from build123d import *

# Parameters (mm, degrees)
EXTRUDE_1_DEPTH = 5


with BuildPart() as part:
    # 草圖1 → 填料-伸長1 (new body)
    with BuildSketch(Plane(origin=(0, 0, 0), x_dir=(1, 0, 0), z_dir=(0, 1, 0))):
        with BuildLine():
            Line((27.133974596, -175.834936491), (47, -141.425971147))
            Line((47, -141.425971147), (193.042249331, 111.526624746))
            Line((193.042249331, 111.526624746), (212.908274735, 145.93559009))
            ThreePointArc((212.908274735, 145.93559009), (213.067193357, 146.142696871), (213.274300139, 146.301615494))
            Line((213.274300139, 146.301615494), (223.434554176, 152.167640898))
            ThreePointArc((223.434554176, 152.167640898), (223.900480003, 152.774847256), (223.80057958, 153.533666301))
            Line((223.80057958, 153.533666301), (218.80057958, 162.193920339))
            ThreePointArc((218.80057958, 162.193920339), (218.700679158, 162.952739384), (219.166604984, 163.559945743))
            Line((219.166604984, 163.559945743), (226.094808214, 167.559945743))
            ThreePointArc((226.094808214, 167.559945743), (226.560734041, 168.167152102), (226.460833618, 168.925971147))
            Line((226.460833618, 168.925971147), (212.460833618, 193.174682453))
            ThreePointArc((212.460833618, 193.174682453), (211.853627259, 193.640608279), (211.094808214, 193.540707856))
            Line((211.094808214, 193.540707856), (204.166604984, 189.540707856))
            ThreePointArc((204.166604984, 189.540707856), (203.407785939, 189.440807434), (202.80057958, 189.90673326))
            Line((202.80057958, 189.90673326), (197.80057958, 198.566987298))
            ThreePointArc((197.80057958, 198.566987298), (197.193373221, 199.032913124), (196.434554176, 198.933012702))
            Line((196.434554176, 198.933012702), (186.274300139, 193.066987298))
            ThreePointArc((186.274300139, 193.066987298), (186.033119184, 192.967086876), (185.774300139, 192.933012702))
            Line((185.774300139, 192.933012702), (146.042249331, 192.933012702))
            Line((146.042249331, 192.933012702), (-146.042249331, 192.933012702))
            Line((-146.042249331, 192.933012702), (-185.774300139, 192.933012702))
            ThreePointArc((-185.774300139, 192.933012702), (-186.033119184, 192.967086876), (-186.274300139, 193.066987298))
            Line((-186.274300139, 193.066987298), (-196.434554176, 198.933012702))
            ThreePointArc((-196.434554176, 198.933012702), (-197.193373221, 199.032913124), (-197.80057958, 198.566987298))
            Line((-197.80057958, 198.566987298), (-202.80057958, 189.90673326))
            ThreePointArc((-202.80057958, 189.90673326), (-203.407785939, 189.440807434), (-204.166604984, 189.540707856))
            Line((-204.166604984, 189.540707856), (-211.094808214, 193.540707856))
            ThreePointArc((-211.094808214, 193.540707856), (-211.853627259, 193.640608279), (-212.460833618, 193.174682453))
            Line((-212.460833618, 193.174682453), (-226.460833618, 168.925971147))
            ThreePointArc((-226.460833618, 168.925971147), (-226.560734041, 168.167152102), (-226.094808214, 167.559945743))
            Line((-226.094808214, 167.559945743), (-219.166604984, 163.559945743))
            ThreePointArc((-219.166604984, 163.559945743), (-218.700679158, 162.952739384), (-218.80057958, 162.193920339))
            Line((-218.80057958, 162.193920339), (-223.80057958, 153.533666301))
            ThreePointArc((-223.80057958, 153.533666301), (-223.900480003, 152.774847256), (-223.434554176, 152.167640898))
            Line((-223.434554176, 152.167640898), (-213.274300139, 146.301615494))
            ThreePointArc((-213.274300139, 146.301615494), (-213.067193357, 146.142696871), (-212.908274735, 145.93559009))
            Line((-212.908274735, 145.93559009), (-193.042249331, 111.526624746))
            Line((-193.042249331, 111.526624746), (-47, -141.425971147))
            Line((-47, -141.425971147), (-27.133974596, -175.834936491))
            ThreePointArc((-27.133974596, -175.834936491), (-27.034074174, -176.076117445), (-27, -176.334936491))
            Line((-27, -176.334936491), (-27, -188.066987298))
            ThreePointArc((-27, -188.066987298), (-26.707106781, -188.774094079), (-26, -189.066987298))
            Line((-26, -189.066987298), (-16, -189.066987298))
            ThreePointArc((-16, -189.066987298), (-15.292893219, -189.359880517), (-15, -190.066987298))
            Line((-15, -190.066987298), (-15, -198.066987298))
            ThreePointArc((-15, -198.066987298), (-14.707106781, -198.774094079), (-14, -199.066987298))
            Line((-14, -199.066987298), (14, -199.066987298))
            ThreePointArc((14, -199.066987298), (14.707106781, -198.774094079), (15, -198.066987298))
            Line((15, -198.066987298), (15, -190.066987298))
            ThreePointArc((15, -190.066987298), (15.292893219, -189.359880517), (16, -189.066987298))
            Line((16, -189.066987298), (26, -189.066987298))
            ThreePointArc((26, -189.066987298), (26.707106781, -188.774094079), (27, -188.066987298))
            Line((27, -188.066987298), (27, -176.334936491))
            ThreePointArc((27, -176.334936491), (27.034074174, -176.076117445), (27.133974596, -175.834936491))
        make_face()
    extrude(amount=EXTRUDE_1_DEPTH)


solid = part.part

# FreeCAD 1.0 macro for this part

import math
import FreeCAD as App
import Part
import Sketcher

V = App.Vector
Q = App.Units.Quantity

doc = App.newDocument("Part")
body = doc.addObject("PartDesign::Body", "Body")

sketch1 = body.newObject("Sketcher::SketchObject", "Sketch")
sketch1.AttachmentSupport = (doc.getObject("XZ_Plane"), [""])
sketch1.MapMode = "FlatFace"
sketch1.addGeometry(Part.LineSegment(V(27.1, 175.8, 0), V(47, 141.4, 0)), False)
sketch1.addGeometry(Part.LineSegment(V(47, 141.4, 0), V(193, -111.5, 0)), False)
sketch1.addGeometry(Part.LineSegment(V(193, -111.5, 0), V(212.9, -145.9, 0)), False)
sketch1.addGeometry(Part.ArcOfCircle(Part.Circle(V(213.8, -145.4, 0), V(0, 0, 1), 1), math.radians(-150), math.radians(-120)), False)
sketch1.addGeometry(Part.LineSegment(V(213.3, -146.3, 0), V(223.4, -152.2, 0)), False)
sketch1.addGeometry(Part.ArcOfCircle(Part.Circle(V(222.9, -153, 0), V(0, 0, 1), 1), math.radians(-30), math.radians(60)), False)
sketch1.addGeometry(Part.LineSegment(V(223.8, -153.5, 0), V(218.8, -162.2, 0)), False)
sketch1.addGeometry(Part.ArcOfCircle(Part.Circle(V(219.7, -162.7, 0), V(0, 0, 1), 1), math.radians(150), math.radians(240)), False)
sketch1.addGeometry(Part.LineSegment(V(219.2, -163.6, 0), V(226.1, -167.6, 0)), False)
sketch1.addGeometry(Part.ArcOfCircle(Part.Circle(V(225.6, -168.4, 0), V(0, 0, 1), 1), math.radians(-30), math.radians(60)), False)
sketch1.addGeometry(Part.LineSegment(V(226.5, -168.9, 0), V(212.5, -193.2, 0)), False)
sketch1.addGeometry(Part.ArcOfCircle(Part.Circle(V(211.6, -192.7, 0), V(0, 0, 1), 1), math.radians(-120), math.radians(-30)), False)
sketch1.addGeometry(Part.LineSegment(V(211.1, -193.5, 0), V(204.2, -189.5, 0)), False)
sketch1.addGeometry(Part.ArcOfCircle(Part.Circle(V(203.7, -190.4, 0), V(0, 0, 1), 1), math.radians(60), math.radians(150)), False)
sketch1.addGeometry(Part.LineSegment(V(202.8, -189.9, 0), V(197.8, -198.6, 0)), False)
sketch1.addGeometry(Part.ArcOfCircle(Part.Circle(V(196.9, -198.1, 0), V(0, 0, 1), 1), math.radians(-120), math.radians(-30)), False)
sketch1.addGeometry(Part.LineSegment(V(196.4, -198.9, 0), V(186.3, -193.1, 0)), False)
sketch1.addGeometry(Part.ArcOfCircle(Part.Circle(V(185.8, -193.9, 0), V(0, 0, 1), 1), math.radians(60), math.radians(90)), False)
sketch1.addGeometry(Part.LineSegment(V(185.8, -192.9, 0), V(-185.8, -192.9, 0)), False)
sketch1.addGeometry(Part.ArcOfCircle(Part.Circle(V(-185.8, -193.9, 0), V(0, 0, 1), 1), math.radians(90), math.radians(120)), False)
sketch1.addGeometry(Part.LineSegment(V(-186.3, -193.1, 0), V(-196.4, -198.9, 0)), False)
sketch1.addGeometry(Part.ArcOfCircle(Part.Circle(V(-196.9, -198.1, 0), V(0, 0, 1), 1), math.radians(-150), math.radians(-60)), False)
sketch1.addGeometry(Part.LineSegment(V(-197.8, -198.6, 0), V(-202.8, -189.9, 0)), False)
sketch1.addGeometry(Part.ArcOfCircle(Part.Circle(V(-203.7, -190.4, 0), V(0, 0, 1), 1), math.radians(30), math.radians(120)), False)
sketch1.addGeometry(Part.LineSegment(V(-204.2, -189.5, 0), V(-211.1, -193.5, 0)), False)
sketch1.addGeometry(Part.ArcOfCircle(Part.Circle(V(-211.6, -192.7, 0), V(0, 0, 1), 1), math.radians(-150), math.radians(-60)), False)
sketch1.addGeometry(Part.LineSegment(V(-212.5, -193.2, 0), V(-226.5, -168.9, 0)), False)
sketch1.addGeometry(Part.ArcOfCircle(Part.Circle(V(-225.6, -168.4, 0), V(0, 0, 1), 1), math.radians(120), math.radians(210)), False)
sketch1.addGeometry(Part.LineSegment(V(-226.1, -167.6, 0), V(-219.2, -163.6, 0)), False)
sketch1.addGeometry(Part.ArcOfCircle(Part.Circle(V(-219.7, -162.7, 0), V(0, 0, 1), 1), math.radians(-60), math.radians(30)), False)
sketch1.addGeometry(Part.LineSegment(V(-218.8, -162.2, 0), V(-223.8, -153.5, 0)), False)
sketch1.addGeometry(Part.ArcOfCircle(Part.Circle(V(-222.9, -153, 0), V(0, 0, 1), 1), math.radians(120), math.radians(210)), False)
sketch1.addGeometry(Part.LineSegment(V(-223.4, -152.2, 0), V(-213.3, -146.3, 0)), False)
sketch1.addGeometry(Part.ArcOfCircle(Part.Circle(V(-213.8, -145.4, 0), V(0, 0, 1), 1), math.radians(-60), math.radians(-30)), False)
sketch1.addGeometry(Part.LineSegment(V(-212.9, -145.9, 0), V(-193, -111.5, 0)), False)
sketch1.addGeometry(Part.LineSegment(V(-193, -111.5, 0), V(-47, 141.4, 0)), False)
sketch1.addGeometry(Part.LineSegment(V(-47, 141.4, 0), V(-27.1, 175.8, 0)), False)
sketch1.addGeometry(Part.ArcOfCircle(Part.Circle(V(-28, 176.3, 0), V(0, 0, 1), 1), math.radians(-30), math.radians(0)), False)
sketch1.addGeometry(Part.LineSegment(V(-27, 176.3, 0), V(-27, 188.1, 0)), False)
sketch1.addGeometry(Part.ArcOfCircle(Part.Circle(V(-26, 188.1, 0), V(0, 0, 1), 1), math.radians(90), math.radians(180)), False)
sketch1.addGeometry(Part.LineSegment(V(-26, 189.1, 0), V(-16, 189.1, 0)), False)
sketch1.addGeometry(Part.ArcOfCircle(Part.Circle(V(-16, 190.1, 0), V(0, 0, 1), 1), math.radians(-90), math.radians(0)), False)
sketch1.addGeometry(Part.LineSegment(V(-15, 190.1, 0), V(-15, 198.1, 0)), False)
sketch1.addGeometry(Part.ArcOfCircle(Part.Circle(V(-14, 198.1, 0), V(0, 0, 1), 1), math.radians(90), math.radians(180)), False)
sketch1.addGeometry(Part.LineSegment(V(-14, 199.1, 0), V(14, 199.1, 0)), False)
sketch1.addGeometry(Part.ArcOfCircle(Part.Circle(V(14, 198.1, 0), V(0, 0, 1), 1), math.radians(0), math.radians(90)), False)
sketch1.addGeometry(Part.LineSegment(V(15, 198.1, 0), V(15, 190.1, 0)), False)
sketch1.addGeometry(Part.ArcOfCircle(Part.Circle(V(16, 190.1, 0), V(0, 0, 1), 1), math.radians(-180), math.radians(-90)), False)
sketch1.addGeometry(Part.LineSegment(V(16, 189.1, 0), V(26, 189.1, 0)), False)
sketch1.addGeometry(Part.ArcOfCircle(Part.Circle(V(26, 188.1, 0), V(0, 0, 1), 1), math.radians(0), math.radians(90)), False)
sketch1.addGeometry(Part.LineSegment(V(27, 188.1, 0), V(27, 176.3, 0)), False)
sketch1.addGeometry(Part.ArcOfCircle(Part.Circle(V(28, 176.3, 0), V(0, 0, 1), 1), math.radians(-180), math.radians(-150)), False)
sketch1.addConstraint(Sketcher.Constraint("Coincident", 0, 2, 1, 1))
sketch1.addConstraint(Sketcher.Constraint("Coincident", 1, 2, 2, 1))
sketch1.addConstraint(Sketcher.Constraint("Tangent", 2, 2, 3, 1))
sketch1.addConstraint(Sketcher.Constraint("Tangent", 3, 2, 4, 1))
sketch1.addConstraint(Sketcher.Constraint("Tangent", 4, 2, 5, 2))
sketch1.addConstraint(Sketcher.Constraint("Tangent", 5, 1, 6, 1))
sketch1.addConstraint(Sketcher.Constraint("Tangent", 6, 2, 7, 1))
sketch1.addConstraint(Sketcher.Constraint("Tangent", 7, 2, 8, 1))
sketch1.addConstraint(Sketcher.Constraint("Tangent", 8, 2, 9, 2))
sketch1.addConstraint(Sketcher.Constraint("Tangent", 9, 1, 10, 1))
sketch1.addConstraint(Sketcher.Constraint("Tangent", 10, 2, 11, 2))
sketch1.addConstraint(Sketcher.Constraint("Tangent", 11, 1, 12, 1))
sketch1.addConstraint(Sketcher.Constraint("Tangent", 12, 2, 13, 1))
sketch1.addConstraint(Sketcher.Constraint("Tangent", 13, 2, 14, 1))
sketch1.addConstraint(Sketcher.Constraint("Tangent", 14, 2, 15, 2))
sketch1.addConstraint(Sketcher.Constraint("Tangent", 15, 1, 16, 1))
sketch1.addConstraint(Sketcher.Constraint("Tangent", 16, 2, 17, 1))
sketch1.addConstraint(Sketcher.Constraint("Tangent", 17, 2, 18, 1))
sketch1.addConstraint(Sketcher.Constraint("Tangent", 18, 2, 19, 1))
sketch1.addConstraint(Sketcher.Constraint("Tangent", 19, 2, 20, 1))
sketch1.addConstraint(Sketcher.Constraint("Tangent", 20, 2, 21, 2))
sketch1.addConstraint(Sketcher.Constraint("Tangent", 21, 1, 22, 1))
sketch1.addConstraint(Sketcher.Constraint("Tangent", 22, 2, 23, 1))
sketch1.addConstraint(Sketcher.Constraint("Tangent", 23, 2, 24, 1))
sketch1.addConstraint(Sketcher.Constraint("Tangent", 24, 2, 25, 2))
sketch1.addConstraint(Sketcher.Constraint("Tangent", 25, 1, 26, 1))
sketch1.addConstraint(Sketcher.Constraint("Tangent", 26, 2, 27, 2))
sketch1.addConstraint(Sketcher.Constraint("Tangent", 27, 1, 28, 1))
sketch1.addConstraint(Sketcher.Constraint("Tangent", 28, 2, 29, 1))
sketch1.addConstraint(Sketcher.Constraint("Tangent", 29, 2, 30, 1))
sketch1.addConstraint(Sketcher.Constraint("Tangent", 30, 2, 31, 2))
sketch1.addConstraint(Sketcher.Constraint("Tangent", 31, 1, 32, 1))
sketch1.addConstraint(Sketcher.Constraint("Tangent", 32, 2, 33, 1))
sketch1.addConstraint(Sketcher.Constraint("Tangent", 33, 2, 34, 1))
sketch1.addConstraint(Sketcher.Constraint("Coincident", 34, 2, 35, 1))
sketch1.addConstraint(Sketcher.Constraint("Coincident", 35, 2, 36, 1))
sketch1.addConstraint(Sketcher.Constraint("Tangent", 36, 2, 37, 1))
sketch1.addConstraint(Sketcher.Constraint("Tangent", 37, 2, 38, 1))
sketch1.addConstraint(Sketcher.Constraint("Tangent", 38, 2, 39, 2))
sketch1.addConstraint(Sketcher.Constraint("Tangent", 39, 1, 40, 1))
sketch1.addConstraint(Sketcher.Constraint("Tangent", 40, 2, 41, 1))
sketch1.addConstraint(Sketcher.Constraint("Tangent", 41, 2, 42, 1))
sketch1.addConstraint(Sketcher.Constraint("Tangent", 42, 2, 43, 2))
sketch1.addConstraint(Sketcher.Constraint("Tangent", 43, 1, 44, 1))
sketch1.addConstraint(Sketcher.Constraint("Tangent", 44, 2, 45, 2))
sketch1.addConstraint(Sketcher.Constraint("Tangent", 45, 1, 46, 1))
sketch1.addConstraint(Sketcher.Constraint("Tangent", 46, 2, 47, 1))
sketch1.addConstraint(Sketcher.Constraint("Tangent", 47, 2, 48, 1))
sketch1.addConstraint(Sketcher.Constraint("Tangent", 48, 2, 49, 2))
sketch1.addConstraint(Sketcher.Constraint("Tangent", 49, 1, 50, 1))
sketch1.addConstraint(Sketcher.Constraint("Tangent", 50, 2, 51, 1))
sketch1.addConstraint(Sketcher.Constraint("Tangent", 51, 2, 0, 1))
sketch1.addConstraint(Sketcher.Constraint("Horizontal", 18))
sketch1.addConstraint(Sketcher.Constraint("Vertical", 38))
sketch1.addConstraint(Sketcher.Constraint("Horizontal", 40))
sketch1.addConstraint(Sketcher.Constraint("Vertical", 42))
sketch1.addConstraint(Sketcher.Constraint("Horizontal", 44))
sketch1.addConstraint(Sketcher.Constraint("Vertical", 46))
sketch1.addConstraint(Sketcher.Constraint("Horizontal", 48))
sketch1.addConstraint(Sketcher.Constraint("Vertical", 50))
sketch1.addConstraint(Sketcher.Constraint("Equal", 3, 5))
sketch1.addConstraint(Sketcher.Constraint("Equal", 5, 7))
sketch1.addConstraint(Sketcher.Constraint("Equal", 7, 9))
sketch1.addConstraint(Sketcher.Constraint("Equal", 9, 11))
sketch1.addConstraint(Sketcher.Constraint("Equal", 11, 13))
sketch1.addConstraint(Sketcher.Constraint("Equal", 13, 15))
sketch1.addConstraint(Sketcher.Constraint("Equal", 15, 17))
sketch1.addConstraint(Sketcher.Constraint("Equal", 17, 19))
sketch1.addConstraint(Sketcher.Constraint("Equal", 19, 21))
sketch1.addConstraint(Sketcher.Constraint("Equal", 21, 23))
sketch1.addConstraint(Sketcher.Constraint("Equal", 23, 25))
sketch1.addConstraint(Sketcher.Constraint("Equal", 25, 27))
sketch1.addConstraint(Sketcher.Constraint("Equal", 27, 29))
sketch1.addConstraint(Sketcher.Constraint("Equal", 29, 31))
sketch1.addConstraint(Sketcher.Constraint("Equal", 31, 33))
sketch1.addConstraint(Sketcher.Constraint("Equal", 33, 37))
sketch1.addConstraint(Sketcher.Constraint("Equal", 37, 39))
sketch1.addConstraint(Sketcher.Constraint("Equal", 39, 41))
sketch1.addConstraint(Sketcher.Constraint("Equal", 41, 43))
sketch1.addConstraint(Sketcher.Constraint("Equal", 43, 45))
sketch1.addConstraint(Sketcher.Constraint("Equal", 45, 47))
sketch1.addConstraint(Sketcher.Constraint("Equal", 47, 49))
sketch1.addConstraint(Sketcher.Constraint("Equal", 49, 51))
sketch1.addConstraint(Sketcher.Constraint("Symmetric", 15, 3, 21, 3, -2))
sketch1.addConstraint(Sketcher.Constraint("Symmetric", 13, 3, 23, 3, -2))
sketch1.addConstraint(Sketcher.Constraint("Symmetric", 11, 3, 25, 3, -2))
sketch1.addConstraint(Sketcher.Constraint("Symmetric", 9, 3, 27, 3, -2))
sketch1.addConstraint(Sketcher.Constraint("Symmetric", 7, 3, 29, 3, -2))
sketch1.addConstraint(Sketcher.Constraint("Symmetric", 5, 3, 31, 3, -2))
sketch1.addConstraint(Sketcher.Constraint("Symmetric", 3, 3, 33, 3, -2))
sketch1.addConstraint(Sketcher.Constraint("Symmetric", 41, 3, 47, 3, -2))
sketch1.addConstraint(Sketcher.Constraint("Symmetric", 37, 3, 51, 3, -2))
sketch1.addConstraint(Sketcher.Constraint("Symmetric", 1, 2, 34, 2, -2))
sketch1.addConstraint(Sketcher.Constraint("Symmetric", 0, 2, 35, 2, -2))
sketch1.addConstraint(Sketcher.Constraint("Parallel", 0, 1))
sketch1.addConstraint(Sketcher.Constraint("Parallel", 1, 2))
sketch1.addConstraint(Sketcher.Constraint("Perpendicular", 4, 6))
sketch1.addConstraint(Sketcher.Constraint("Perpendicular", 6, 8))
sketch1.addConstraint(Sketcher.Constraint("Perpendicular", 8, 10))
sketch1.addConstraint(Sketcher.Constraint("Perpendicular", 10, 12))
sketch1.addConstraint(Sketcher.Constraint("Perpendicular", 12, 14))
sketch1.addConstraint(Sketcher.Constraint("Perpendicular", 14, 16))
sketch1.addConstraint(Sketcher.Constraint("Perpendicular", 2, 20))
sketch1.addConstraint(Sketcher.Constraint("Perpendicular", 20, 22))
sketch1.addConstraint(Sketcher.Constraint("Equal", 0, 2))
sketch1.addConstraint(Sketcher.Constraint("Equal", 8, 12))
sketch1.addConstraint(Sketcher.Constraint("Equal", 6, 14))
sketch1.addConstraint(Sketcher.Constraint("Equal", 4, 16))
sketch1.addConstraint(Sketcher.Constraint("Radius", 3, 1.0))
sketch1.addConstraint(Sketcher.Constraint("DistanceX", 40, 1, 40, 2, 10.0))
sketch1.addConstraint(Sketcher.Constraint("DistanceX", 44, 1, 44, 2, 28.0))
sketch1.addConstraint(Sketcher.Constraint("DistanceY", 42, 1, 42, 2, 8.0))
sketch1.addConstraint(Sketcher.Constraint("Angle", 0, Q("-60 deg")))
sketch1.addConstraint(Sketcher.Constraint("Distance", 6, 10.0))
sketch1.addConstraint(Sketcher.Constraint("Distance", 8, 8.0))
sketch1.addConstraint(Sketcher.Constraint("Distance", 10, 28.0))
sketch1.addConstraint(Sketcher.Constraint("DistanceX", -1, 1, 0, 2, 47.0))
sketch1.addConstraint(Sketcher.Constraint("DistanceX", 18, 2, 18, 1, 371.5486))
sketch1.addConstraint(Sketcher.Constraint("DistanceY", 38, 1, 38, 2, 11.732051))
sketch1.addConstraint(Sketcher.Constraint("Distance", 4, 11.732051))
sketch1.addConstraint(Sketcher.Constraint("DistanceY", 3, 3, -1, 1, 145.43559))
pad1 = body.newObject("PartDesign::Pad", "Pad")
pad1.Profile = sketch1
pad1.Length = 5
pad1.Reversed = True

doc.recompute()
